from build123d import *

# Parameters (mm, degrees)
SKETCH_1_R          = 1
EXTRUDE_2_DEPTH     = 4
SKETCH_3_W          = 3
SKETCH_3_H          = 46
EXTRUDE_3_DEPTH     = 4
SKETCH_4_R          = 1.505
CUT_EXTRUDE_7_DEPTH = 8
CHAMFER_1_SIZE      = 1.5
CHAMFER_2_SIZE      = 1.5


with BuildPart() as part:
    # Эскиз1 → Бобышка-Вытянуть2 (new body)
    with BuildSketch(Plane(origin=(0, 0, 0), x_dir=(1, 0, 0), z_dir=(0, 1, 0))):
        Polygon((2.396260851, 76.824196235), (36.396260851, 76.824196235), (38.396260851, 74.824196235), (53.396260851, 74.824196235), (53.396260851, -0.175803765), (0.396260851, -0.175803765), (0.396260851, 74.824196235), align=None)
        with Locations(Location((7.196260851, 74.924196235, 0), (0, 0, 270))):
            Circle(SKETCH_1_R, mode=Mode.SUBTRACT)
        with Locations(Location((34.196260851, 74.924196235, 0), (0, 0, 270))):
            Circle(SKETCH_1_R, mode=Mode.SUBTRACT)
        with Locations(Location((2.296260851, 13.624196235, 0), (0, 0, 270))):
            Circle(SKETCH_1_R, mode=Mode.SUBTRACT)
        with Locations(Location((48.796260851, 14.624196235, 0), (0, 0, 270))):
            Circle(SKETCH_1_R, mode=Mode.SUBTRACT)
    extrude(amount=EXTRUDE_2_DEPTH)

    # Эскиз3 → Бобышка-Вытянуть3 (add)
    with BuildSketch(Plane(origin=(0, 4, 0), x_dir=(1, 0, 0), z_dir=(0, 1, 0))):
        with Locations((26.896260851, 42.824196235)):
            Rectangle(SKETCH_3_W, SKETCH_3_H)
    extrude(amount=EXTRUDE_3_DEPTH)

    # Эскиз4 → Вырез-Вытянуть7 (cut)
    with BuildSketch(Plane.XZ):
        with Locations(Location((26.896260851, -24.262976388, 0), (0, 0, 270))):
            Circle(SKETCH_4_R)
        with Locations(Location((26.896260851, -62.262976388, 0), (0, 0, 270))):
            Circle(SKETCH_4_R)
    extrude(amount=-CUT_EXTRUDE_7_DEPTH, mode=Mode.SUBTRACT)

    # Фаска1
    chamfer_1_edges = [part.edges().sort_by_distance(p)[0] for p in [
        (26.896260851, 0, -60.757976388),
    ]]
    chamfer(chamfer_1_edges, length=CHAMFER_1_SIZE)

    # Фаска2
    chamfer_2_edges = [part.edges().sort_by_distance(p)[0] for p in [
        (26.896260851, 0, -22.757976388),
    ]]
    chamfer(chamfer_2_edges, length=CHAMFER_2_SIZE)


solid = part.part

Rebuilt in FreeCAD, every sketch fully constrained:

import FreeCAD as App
import Part
import Sketcher
Q = App.Units.Quantity


def edges_at(feature, points):
    """Names of the edges that pass closest to the given points."""
    edges = feature.Shape.Edges
    near = lambda p: min(range(len(edges)), key=lambda i: edges[i].distToShape(Part.Vertex(*p))[0])
    return sorted({f"Edge{near(p) + 1}" for p in points})


def add_polygon(sketch, points):
    """Adds a closed chain of lines whose ends are joined by coincident constraints."""
    first, n = sketch.GeometryCount, len(points)
    for a, b in zip(points, points[1:] + points[:1]):
        sketch.addGeometry(Part.LineSegment(App.Vector(*a, 0), App.Vector(*b, 0)), False)
    for i in range(n):
        sketch.addConstraint(Sketcher.Constraint("Coincident", first + i, 2, first + (i + 1) % n, 1))

doc = App.newDocument("Part")
params = doc.addObject("Spreadsheet::Sheet", "Params")
for row, (alias, value) in enumerate([
    ("sketch1_diameter", "2 mm"),
    ("sketch1_width", "34 mm"),
    ("sketch1_width2", "53 mm"),
    ("sketch1_width3", "15 mm"),
    ("sketch1_height", "75 mm"),
    ("pad1_length", "4 mm"),
    ("sketch2_width", "3 mm"),
    ("sketch2_height", "46 mm"),
    ("pad2_length", "4 mm"),
    ("sketch3_diameter", "3.01 mm"),
    ("pocket1_length", "8 mm"),
    ("chamfer_size", "1.5 mm"),
    ("chamfer2_size", "1.5 mm"),
], start=1):
    params.set(f"A{row}", alias)
    params.set(f"B{row}", "=" + value)
    params.setAlias(f"B{row}", alias)

body = doc.addObject("PartDesign::Body", "Body")

# Sketch on XZ plane
sketch1 = body.newObject("Sketcher::SketchObject", "Sketch")
sketch1.AttachmentSupport = (doc.getObject("XZ_Plane"), [""])
sketch1.MapMode = "FlatFace"
add_polygon(sketch1, [(36.396261, -76.824196), (2.396261, -76.824196), (0.396261, -74.824196), (0.396261, 0.175804), (53.396261, 0.175804), (53.396261, -74.824196), (38.396261, -74.824196)])  # lines 0-6
sketch1.addGeometry(Part.Circle(App.Vector(48.796261, -14.624196, 0), App.Vector(0, 0, 1), 1), False)  # 7
sketch1.addGeometry(Part.Circle(App.Vector(2.296261, -13.624196, 0), App.Vector(0, 0, 1), 1), False)  # 8
sketch1.addGeometry(Part.Circle(App.Vector(34.196261, -74.924196, 0), App.Vector(0, 0, 1), 1), False)  # 9
sketch1.addGeometry(Part.Circle(App.Vector(7.196261, -74.924196, 0), App.Vector(0, 0, 1), 1), False)  # 10
sketch1.addConstraint([
    Sketcher.Constraint("Horizontal", 0),
    Sketcher.Constraint("Vertical", 2),
    Sketcher.Constraint("Horizontal", 3),
    Sketcher.Constraint("Vertical", 4),
    Sketcher.Constraint("Horizontal", 5),
    Sketcher.Constraint("Equal", 7, 8),
    Sketcher.Constraint("Equal", 8, 9),
    Sketcher.Constraint("Equal", 9, 10),
    Sketcher.Constraint("Perpendicular", 1, 6),
    Sketcher.Constraint("Horizontal", 9, 3, 10, 3),
    Sketcher.Constraint("Horizontal", 1, 2, 4, 2),
    Sketcher.Constraint("Equal", 1, 6),
    Sketcher.Constraint("Diameter", 7, Q("2 mm")),
    Sketcher.Constraint("DistanceX", 0, 2, 0, 1, Q("34 mm")),
    Sketcher.Constraint("DistanceX", 3, 1, 3, 2, Q("53 mm")),
    Sketcher.Constraint("DistanceX", 5, 2, 5, 1, Q("15 mm")),
    Sketcher.Constraint("DistanceY", 2, 1, 2, 2, Q("75 mm")),
    Sketcher.Constraint("DistanceY", 7, 3, 8, 3, Q("1 mm")),
    Sketcher.Constraint("DistanceX", 10, 3, 9, 3, Q("27 mm")),
    Sketcher.Constraint("DistanceX", 8, 3, 7, 3, Q("46.5 mm")),
    Sketcher.Constraint("DistanceX", 9, 3, 7, 3, Q("14.6 mm")),
    Sketcher.Constraint("DistanceY", 9, 3, 7, 3, Q("60.3 mm")),
    Sketcher.Constraint("DistanceX", 0, 2, 10, 3, Q("4.8 mm")),
    Sketcher.Constraint("DistanceY", 0, 2, 10, 3, Q("1.9 mm")),
    Sketcher.Constraint("DistanceX", -1, 1, 7, 3, Q("48.796261 mm")),
    Sketcher.Constraint("DistanceY", 7, 3, -1, 1, Q("14.624196 mm")),
])
sketch1.setExpression("Constraints[19]", "Params.sketch1_diameter")
sketch1.setExpression("Constraints[20]", "Params.sketch1_width")
sketch1.setExpression("Constraints[21]", "Params.sketch1_width2")
sketch1.setExpression("Constraints[22]", "Params.sketch1_width3")
sketch1.setExpression("Constraints[23]", "Params.sketch1_height")
pad1 = body.newObject("PartDesign::Pad", "Pad")
pad1.Profile = sketch1
pad1.setExpression("Length", "Params.pad1_length")
pad1.Reversed = True

# Sketch on XZ plane
sketch2 = body.newObject("Sketcher::SketchObject", "Sketch001")
sketch2.AttachmentSupport = (doc.getObject("XZ_Plane"), [""])
sketch2.MapMode = "FlatFace"
sketch2.AttachmentOffset = App.Placement(App.Vector(0, 0, -4), App.Rotation())
add_polygon(sketch2, [(25.396261, -65.824196), (25.396261, -19.824196), (28.396261, -19.824196), (28.396261, -65.824196)])  # lines 0-3
sketch2.addConstraint([
    Sketcher.Constraint("Vertical", 0),
    Sketcher.Constraint("Horizontal", 1),
    Sketcher.Constraint("Vertical", 2),
    Sketcher.Constraint("Horizontal", 3),
    Sketcher.Constraint("DistanceX", 1, 1, 1, 2, Q("3 mm")),
    Sketcher.Constraint("DistanceY", 0, 1, 0, 2, Q("46 mm")),
    Sketcher.Constraint("DistanceX", -1, 1, 0, 2, Q("25.396261 mm")),
    Sketcher.Constraint("DistanceY", 0, 2, -1, 1, Q("19.824196 mm")),
])
sketch2.setExpression("Constraints[8]", "Params.sketch2_width")
sketch2.setExpression("Constraints[9]", "Params.sketch2_height")
pad2 = body.newObject("PartDesign::Pad", "Pad001")
pad2.Profile = sketch2
pad2.setExpression("Length", "Params.pad2_length")
pad2.Reversed = True

# Sketch on XZ plane
sketch3 = body.newObject("Sketcher::SketchObject", "Sketch002")
sketch3.AttachmentSupport = (doc.getObject("XZ_Plane"), [""])
sketch3.MapMode = "FlatFace"
sketch3.addGeometry([
    Part.Circle(App.Vector(26.896261, -24.262976, 0), App.Vector(0, 0, 1), 1.505),
    Part.Circle(App.Vector(26.896261, -62.262976, 0), App.Vector(0, 0, 1), 1.505),
], False)
sketch3.addConstraint([
    Sketcher.Constraint("Equal", 0, 1),
    Sketcher.Constraint("Vertical", 0, 3, 1, 3),
    Sketcher.Constraint("Diameter", 0, Q("3.01 mm")),
    Sketcher.Constraint("DistanceY", 1, 3, 0, 3, Q("38 mm")),
    Sketcher.Constraint("DistanceX", -1, 1, 0, 3, Q("26.896261 mm")),
    Sketcher.Constraint("DistanceY", 0, 3, -1, 1, Q("24.262976 mm")),
])
sketch3.setExpression("Constraints[2]", "Params.sketch3_diameter")
pocket1 = body.newObject("PartDesign::Pocket", "Pocket")
pocket1.Profile = sketch3
pocket1.setExpression("Length", "Params.pocket1_length")
doc.recompute()

chamfer = body.newObject("PartDesign::Chamfer", "Chamfer")
chamfer.Base = (pocket1, edges_at(pocket1, [(26.896, 0, -60.758)]))
chamfer.setExpression("Size", "Params.chamfer_size")
doc.recompute()

chamfer2 = body.newObject("PartDesign::Chamfer", "Chamfer001")
chamfer2.Base = (chamfer, edges_at(chamfer, [(26.896, 0, -22.758)]))
chamfer2.setExpression("Size", "Params.chamfer2_size")

doc.recompute()
